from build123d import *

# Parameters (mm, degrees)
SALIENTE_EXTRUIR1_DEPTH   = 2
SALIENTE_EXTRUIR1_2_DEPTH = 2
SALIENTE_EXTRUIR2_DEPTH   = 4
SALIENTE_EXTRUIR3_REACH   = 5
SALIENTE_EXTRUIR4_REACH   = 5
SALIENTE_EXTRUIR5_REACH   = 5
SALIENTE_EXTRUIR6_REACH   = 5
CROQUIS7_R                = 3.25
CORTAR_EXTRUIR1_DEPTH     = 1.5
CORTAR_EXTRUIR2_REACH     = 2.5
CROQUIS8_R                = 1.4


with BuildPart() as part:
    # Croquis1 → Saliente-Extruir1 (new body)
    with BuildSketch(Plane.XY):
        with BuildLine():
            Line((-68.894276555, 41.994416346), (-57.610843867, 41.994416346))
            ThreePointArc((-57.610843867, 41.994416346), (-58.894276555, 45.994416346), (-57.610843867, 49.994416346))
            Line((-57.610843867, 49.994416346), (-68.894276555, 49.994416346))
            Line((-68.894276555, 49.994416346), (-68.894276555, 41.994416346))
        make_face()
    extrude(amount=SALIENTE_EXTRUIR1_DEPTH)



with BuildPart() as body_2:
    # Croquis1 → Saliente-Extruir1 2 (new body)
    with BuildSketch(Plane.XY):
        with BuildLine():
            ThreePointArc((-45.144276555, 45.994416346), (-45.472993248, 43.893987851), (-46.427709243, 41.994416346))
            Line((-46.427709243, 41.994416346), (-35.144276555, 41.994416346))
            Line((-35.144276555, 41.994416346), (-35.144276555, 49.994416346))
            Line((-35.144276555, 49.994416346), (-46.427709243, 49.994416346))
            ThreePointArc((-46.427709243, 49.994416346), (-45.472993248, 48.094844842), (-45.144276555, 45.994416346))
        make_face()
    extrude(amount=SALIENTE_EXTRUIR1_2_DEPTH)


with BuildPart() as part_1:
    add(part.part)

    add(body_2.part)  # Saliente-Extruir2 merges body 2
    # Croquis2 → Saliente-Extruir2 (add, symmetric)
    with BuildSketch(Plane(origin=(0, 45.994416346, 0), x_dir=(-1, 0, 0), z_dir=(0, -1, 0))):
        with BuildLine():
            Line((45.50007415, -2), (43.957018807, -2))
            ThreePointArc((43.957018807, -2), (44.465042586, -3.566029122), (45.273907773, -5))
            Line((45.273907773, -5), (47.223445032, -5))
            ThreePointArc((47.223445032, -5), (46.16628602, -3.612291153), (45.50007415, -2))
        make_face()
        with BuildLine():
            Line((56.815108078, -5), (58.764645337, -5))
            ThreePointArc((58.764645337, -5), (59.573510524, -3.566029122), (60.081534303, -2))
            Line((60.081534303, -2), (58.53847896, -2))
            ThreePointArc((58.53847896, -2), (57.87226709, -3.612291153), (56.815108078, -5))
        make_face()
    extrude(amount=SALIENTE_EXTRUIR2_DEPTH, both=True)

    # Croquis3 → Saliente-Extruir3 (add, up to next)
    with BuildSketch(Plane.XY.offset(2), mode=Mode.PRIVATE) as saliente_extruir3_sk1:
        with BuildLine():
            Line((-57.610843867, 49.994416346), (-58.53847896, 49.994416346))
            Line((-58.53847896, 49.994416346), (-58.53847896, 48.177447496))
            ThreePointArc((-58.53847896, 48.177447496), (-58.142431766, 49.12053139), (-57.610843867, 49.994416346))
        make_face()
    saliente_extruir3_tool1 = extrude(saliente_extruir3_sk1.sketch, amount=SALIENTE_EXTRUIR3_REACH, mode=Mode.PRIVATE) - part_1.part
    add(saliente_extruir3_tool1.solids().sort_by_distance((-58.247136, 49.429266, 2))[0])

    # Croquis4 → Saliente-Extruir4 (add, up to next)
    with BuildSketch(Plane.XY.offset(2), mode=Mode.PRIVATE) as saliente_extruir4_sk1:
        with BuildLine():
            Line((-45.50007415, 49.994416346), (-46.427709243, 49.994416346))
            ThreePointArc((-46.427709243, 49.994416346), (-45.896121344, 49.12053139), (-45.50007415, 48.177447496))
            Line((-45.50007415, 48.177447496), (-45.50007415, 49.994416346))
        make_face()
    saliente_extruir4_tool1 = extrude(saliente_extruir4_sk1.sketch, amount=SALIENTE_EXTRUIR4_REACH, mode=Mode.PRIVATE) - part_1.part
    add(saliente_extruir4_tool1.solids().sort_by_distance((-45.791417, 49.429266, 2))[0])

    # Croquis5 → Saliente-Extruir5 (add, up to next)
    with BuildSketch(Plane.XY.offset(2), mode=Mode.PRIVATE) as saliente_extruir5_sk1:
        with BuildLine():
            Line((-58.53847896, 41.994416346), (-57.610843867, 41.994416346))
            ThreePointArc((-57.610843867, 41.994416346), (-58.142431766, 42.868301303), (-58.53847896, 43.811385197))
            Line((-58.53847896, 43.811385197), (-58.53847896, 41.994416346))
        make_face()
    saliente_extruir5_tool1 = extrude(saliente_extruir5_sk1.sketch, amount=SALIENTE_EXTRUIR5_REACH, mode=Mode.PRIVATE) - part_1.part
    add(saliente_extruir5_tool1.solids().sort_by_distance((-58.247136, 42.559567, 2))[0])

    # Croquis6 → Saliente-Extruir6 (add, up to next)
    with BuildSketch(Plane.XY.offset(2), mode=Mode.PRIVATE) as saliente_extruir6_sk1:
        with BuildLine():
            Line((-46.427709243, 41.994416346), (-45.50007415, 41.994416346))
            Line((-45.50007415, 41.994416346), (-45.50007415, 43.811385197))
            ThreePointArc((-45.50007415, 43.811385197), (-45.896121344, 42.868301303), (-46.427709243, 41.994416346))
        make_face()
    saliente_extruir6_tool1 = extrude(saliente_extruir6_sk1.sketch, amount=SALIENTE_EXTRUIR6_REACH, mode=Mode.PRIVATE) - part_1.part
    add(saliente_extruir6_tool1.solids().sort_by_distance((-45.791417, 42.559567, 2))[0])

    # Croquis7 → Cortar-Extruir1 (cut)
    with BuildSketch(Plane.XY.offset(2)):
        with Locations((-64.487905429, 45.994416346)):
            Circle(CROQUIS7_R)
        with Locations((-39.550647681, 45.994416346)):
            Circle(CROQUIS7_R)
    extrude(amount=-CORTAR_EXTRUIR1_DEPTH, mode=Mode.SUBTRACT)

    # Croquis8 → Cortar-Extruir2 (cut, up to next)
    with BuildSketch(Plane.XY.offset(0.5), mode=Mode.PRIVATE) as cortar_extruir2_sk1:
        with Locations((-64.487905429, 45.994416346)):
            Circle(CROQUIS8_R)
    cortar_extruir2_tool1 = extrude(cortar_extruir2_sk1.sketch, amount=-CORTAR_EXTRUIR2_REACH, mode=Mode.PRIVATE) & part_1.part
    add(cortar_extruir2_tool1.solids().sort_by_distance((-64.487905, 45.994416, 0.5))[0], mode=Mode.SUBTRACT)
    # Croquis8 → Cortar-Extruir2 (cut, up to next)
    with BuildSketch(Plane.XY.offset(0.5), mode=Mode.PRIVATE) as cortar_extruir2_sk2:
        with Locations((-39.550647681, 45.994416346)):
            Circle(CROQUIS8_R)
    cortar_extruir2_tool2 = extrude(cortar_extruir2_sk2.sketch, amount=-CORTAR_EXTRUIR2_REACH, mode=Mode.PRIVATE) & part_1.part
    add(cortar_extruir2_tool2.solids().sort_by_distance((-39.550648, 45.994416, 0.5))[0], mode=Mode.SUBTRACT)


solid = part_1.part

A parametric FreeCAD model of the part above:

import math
import FreeCAD as App
import Part
import Sketcher

V = App.Vector

doc = App.newDocument("Part")
params = doc.addObject("Spreadsheet::Sheet", "Params")
for row, (alias, value) in enumerate([
    ("sketch1_height", "8 mm"),
    ("pad1_length", "2 mm"),
    ("sketch2_height", "8 mm"),
    ("pad2_length", "2 mm"),
    ("sketch3_radius", "8.25 mm"),
    ("sketch3_radius2", "6.75 mm"),
    ("pad3_length", "8 mm"),
    ("pad5_length", "2.031121 mm"),
    ("pad7_length", "2.031121 mm"),
    ("sketch8_diameter", "6.5 mm"),
    ("pocket1_length", "1.5 mm"),
    ("sketch9_diameter", "2.8 mm"),
    ("sketch10_diameter", "2.8 mm"),
], start=1):
    params.set(f"A{row}", alias)
    params.set(f"B{row}", "=" + value)
    params.setAlias(f"B{row}", alias)

body = doc.addObject("PartDesign::Body", "Body")

# Sketch on XY plane
sketch1 = body.newObject("Sketcher::SketchObject", "Sketch")
sketch1.AttachmentSupport = (doc.getObject("XY_Plane"), [""])
sketch1.MapMode = "FlatFace"
sketch1.addGeometry([
    Part.LineSegment(V(-68.894277, 41.994416, 0), V(-57.610844, 41.994416, 0)),
    Part.ArcOfCircle(Part.Circle(V(-52.019277, 45.994416, 0), V(0, 0, 1), 6.875), math.radians(144.421474), math.radians(215.578526)),
    Part.LineSegment(V(-57.610844, 49.994416, 0), V(-68.894277, 49.994416, 0)),
    Part.LineSegment(V(-68.894277, 49.994416, 0), V(-68.894277, 41.994416, 0)),
], False)
sketch1.addConstraint([
    Sketcher.Constraint("Coincident", 0, 2, 1, 2),
    Sketcher.Constraint("Coincident", 1, 1, 2, 1),
    Sketcher.Constraint("Coincident", 2, 2, 3, 1),
    Sketcher.Constraint("Coincident", 3, 2, 0, 1),
    Sketcher.Constraint("Horizontal", 0),
    Sketcher.Constraint("Horizontal", 2),
    Sketcher.Constraint("Vertical", 3),
    Sketcher.Constraint("Vertical", 0, 2, 1, 1),
    Sketcher.Constraint("DistanceY", 3, 2, 3, 1, 8.0),
    Sketcher.Constraint("Radius", 1, 6.875),
    Sketcher.Constraint("DistanceX", 2, 2, 1, 3, 16.875),
    Sketcher.Constraint("DistanceX", 1, 3, -1, 1, 52.019277),
    Sketcher.Constraint("DistanceY", -1, 1, 1, 3, 45.994416),
])
sketch1.setExpression("Constraints[8]", "Params.sketch1_height")
pad1 = body.newObject("PartDesign::Pad", "Pad")
pad1.Profile = sketch1
pad1.setExpression("Length", "Params.pad1_length")
body2 = doc.addObject("PartDesign::Body", "Body001")

# Sketch on XY plane
sketch2 = body2.newObject("Sketcher::SketchObject", "Sketch001")
sketch2.AttachmentSupport = (doc.getObject("XY_Plane001"), [""])
sketch2.MapMode = "FlatFace"
sketch2.addGeometry([
    Part.ArcOfCircle(Part.Circle(V(-52.019277, 45.994416, 0), V(0, 0, 1), 6.875), math.radians(-35.578526), math.radians(0)),  # 0
    Part.LineSegment(V(-46.427709, 41.994416, 0), V(-35.144277, 41.994416, 0)),  # 1
    Part.LineSegment(V(-35.144277, 41.994416, 0), V(-35.144277, 49.994416, 0)),  # 2
    Part.LineSegment(V(-35.144277, 49.994416, 0), V(-46.427709, 49.994416, 0)),  # 3
    Part.ArcOfCircle(Part.Circle(V(-52.019277, 45.994416, 0), V(0, 0, 1), 6.875), math.radians(0), math.radians(35.578526)),  # 4
], False)
sketch2.addConstraint([
    Sketcher.Constraint("Coincident", 0, 1, 1, 1),
    Sketcher.Constraint("Coincident", 1, 2, 2, 1),
    Sketcher.Constraint("Coincident", 2, 2, 3, 1),
    Sketcher.Constraint("Coincident", 3, 2, 4, 2),
    Sketcher.Constraint("Tangent", 4, 1, 0, 2),
    Sketcher.Constraint("Horizontal", 1),
    Sketcher.Constraint("Vertical", 2),
    Sketcher.Constraint("Horizontal", 3),
    Sketcher.Constraint("Equal", 0, 4),
    Sketcher.Constraint("Horizontal", 0, 3, 4, 1),
    Sketcher.Constraint("Vertical", 0, 1, 3, 2),
    Sketcher.Constraint("DistanceY", 2, 1, 2, 2, 8.0),
    Sketcher.Constraint("Radius", 0, 6.875),
    Sketcher.Constraint("DistanceX", 4, 1, 1, 2, 10.0),
    Sketcher.Constraint("DistanceX", 0, 1, -1, 1, 46.427709),
    Sketcher.Constraint("DistanceY", -1, 1, 0, 3, 45.994416),
])
sketch2.setExpression("Constraints[11]", "Params.sketch2_height")
pad2 = body2.newObject("PartDesign::Pad", "Pad001")
pad2.Profile = sketch2
pad2.setExpression("Length", "Params.pad2_length")
body.AllowCompound = True
doc.recompute()

boolean = body.newObject("PartDesign::Boolean", "Boolean")
boolean.Type = "Fuse"
boolean.addObjects([body2])

# Sketch on XZ plane
sketch3 = body.newObject("Sketcher::SketchObject", "Sketch002")
sketch3.AttachmentSupport = (doc.getObject("XZ_Plane"), [""])
sketch3.MapMode = "FlatFace"
sketch3.AttachmentOffset = App.Placement(V(0, 0, -45.994416), App.Rotation())
sketch3.addGeometry([
    Part.LineSegment(V(-45.500074, 2, 0), V(-43.957019, 2, 0)),  # 0
    Part.ArcOfCircle(Part.Circle(V(-52.019277, 0.25, 0), V(0, 0, 1), 8.25), math.radians(12.24669), math.radians(35.152703)),  # 1
    Part.LineSegment(V(-45.273908, 5, 0), V(-47.223445, 5, 0)),  # 2
    Part.ArcOfCircle(Part.Circle(V(-52.019277, 0.25, 0), V(0, 0, 1), 6.75), math.radians(15.026114), math.radians(44.724913)),  # 3
    Part.LineSegment(V(-56.815108, 5, 0), V(-58.764645, 5, 0)),  # 4
    Part.ArcOfCircle(Part.Circle(V(-52.019277, 0.25, 0), V(0, 0, 1), 8.25), math.radians(144.847297), math.radians(167.75331)),  # 5
    Part.LineSegment(V(-60.081534, 2, 0), V(-58.538479, 2, 0)),  # 6
    Part.ArcOfCircle(Part.Circle(V(-52.019277, 0.25, 0), V(0, 0, 1), 6.75), math.radians(135.275087), math.radians(164.973886)),  # 7
], False)
sketch3.addConstraint([
    Sketcher.Constraint("Coincident", 0, 2, 1, 1),
    Sketcher.Constraint("Coincident", 1, 2, 2, 1),
    Sketcher.Constraint("Coincident", 2, 2, 3, 2),
    Sketcher.Constraint("Coincident", 3, 1, 0, 1),
    Sketcher.Constraint("Coincident", 4, 2, 5, 1),
    Sketcher.Constraint("Coincident", 5, 2, 6, 1),
    Sketcher.Constraint("Coincident", 6, 2, 7, 2),
    Sketcher.Constraint("Coincident", 7, 1, 4, 1),
    Sketcher.Constraint("Horizontal", 0),
    Sketcher.Constraint("Horizontal", 2),
    Sketcher.Constraint("Horizontal", 4),
    Sketcher.Constraint("Horizontal", 6),
    Sketcher.Constraint("Coincident", 3, 3, 1, 3),
    Sketcher.Constraint("Coincident", 5, 3, 1, 3),
    Sketcher.Constraint("Coincident", 7, 3, 1, 3),
    Sketcher.Constraint("Equal", 1, 5),
    Sketcher.Constraint("Equal", 3, 7),
    Sketcher.Constraint("Horizontal", 2, 2, 4, 2),
    Sketcher.Constraint("Horizontal", 3, 1, 5, 2),
    Sketcher.Constraint("Radius", 1, 8.25),
    Sketcher.Constraint("Radius", 3, 6.75),
    Sketcher.Constraint("DistanceY", -1, 1, 0, 2, 2.0),
    Sketcher.Constraint("DistanceY", -1, 1, 1, 2, 5.0),
    Sketcher.Constraint("DistanceY", -1, 1, 1, 3, 0.25),
    Sketcher.Constraint("DistanceX", 0, 2, -1, 1, 43.957019),
])
sketch3.setExpression("Constraints[19]", "Params.sketch3_radius")
sketch3.setExpression("Constraints[20]", "Params.sketch3_radius2")
pad3 = body.newObject("PartDesign::Pad", "Pad002")
pad3.Profile = sketch3
pad3.setExpression("Length", "Params.pad3_length")
pad3.Midplane = True

# Sketch on XY plane
sketch4 = body.newObject("Sketcher::SketchObject", "Sketch003")
sketch4.AttachmentSupport = (doc.getObject("XY_Plane"), [""])
sketch4.MapMode = "FlatFace"
sketch4.AttachmentOffset = App.Placement(V(0, 0, 2), App.Rotation())
sketch4.addGeometry([
    Part.LineSegment(V(-57.610844, 49.994416, 0), V(-58.538479, 49.994416, 0)),
    Part.LineSegment(V(-58.538479, 49.994416, 0), V(-58.538479, 48.177447, 0)),
    Part.ArcOfCircle(Part.Circle(V(-52.019277, 45.994416, 0), V(0, 0, 1), 6.875), math.radians(144.421474), math.radians(161.486276)),
], False)
sketch4.addConstraint([
    Sketcher.Constraint("Coincident", 0, 2, 1, 1),
    Sketcher.Constraint("Coincident", 1, 2, 2, 2),
    Sketcher.Constraint("Coincident", 2, 1, 0, 1),
    Sketcher.Constraint("Horizontal", 0),
    Sketcher.Constraint("Vertical", 1),
    Sketcher.Constraint("Radius", 2, 6.875),
    Sketcher.Constraint("DistanceY", 2, 3, 0, 2, 4.0),
    Sketcher.Constraint("DistanceY", 1, 2, 1, 1, 1.816969),
    Sketcher.Constraint("DistanceX", 0, 2, -1, 1, 58.538479),
    Sketcher.Constraint("DistanceY", -1, 1, 2, 3, 45.994416),
])
pad4 = body.newObject("PartDesign::Pad", "Pad003")
pad4.Profile = sketch4
pad4.Type = "UpToFirst"

# Sketch on XY plane
sketch5 = body.newObject("Sketcher::SketchObject", "Sketch004")
sketch5.AttachmentSupport = (doc.getObject("XY_Plane"), [""])
sketch5.MapMode = "FlatFace"
sketch5.AttachmentOffset = App.Placement(V(0, 0, 2), App.Rotation())
sketch5.addGeometry([
    Part.LineSegment(V(-45.500074, 49.994416, 0), V(-46.427709, 49.994416, 0)),
    Part.ArcOfCircle(Part.Circle(V(-52.019277, 45.994416, 0), V(0, 0, 1), 6.875), math.radians(18.513724), math.radians(35.578526)),
    Part.LineSegment(V(-45.500074, 48.177447, 0), V(-45.500074, 49.994416, 0)),
], False)
sketch5.addConstraint([
    Sketcher.Constraint("Coincident", 0, 2, 1, 2),
    Sketcher.Constraint("Coincident", 1, 1, 2, 1),
    Sketcher.Constraint("Coincident", 2, 2, 0, 1),
    Sketcher.Constraint("Horizontal", 0),
    Sketcher.Constraint("Vertical", 2),
    Sketcher.Constraint("Radius", 1, 6.875),
    Sketcher.Constraint("DistanceY", 1, 3, 0, 2, 4.0),
    Sketcher.Constraint("DistanceY", 2, 1, 2, 2, 1.816969),
    Sketcher.Constraint("DistanceX", 0, 2, -1, 1, 46.427709),
    Sketcher.Constraint("DistanceY", -1, 1, 1, 3, 45.994416),
])
pad5 = body.newObject("PartDesign::Pad", "Pad004")
pad5.Profile = sketch5
pad5.setExpression("Length", "Params.pad5_length")

# Sketch on XY plane
sketch6 = body.newObject("Sketcher::SketchObject", "Sketch005")
sketch6.AttachmentSupport = (doc.getObject("XY_Plane"), [""])
sketch6.MapMode = "FlatFace"
sketch6.AttachmentOffset = App.Placement(V(0, 0, 2), App.Rotation())
sketch6.addGeometry([
    Part.LineSegment(V(-58.538479, 41.994416, 0), V(-57.610844, 41.994416, 0)),
    Part.ArcOfCircle(Part.Circle(V(-52.019277, 45.994416, 0), V(0, 0, 1), 6.875), math.radians(-161.486276), math.radians(-144.421474)),
    Part.LineSegment(V(-58.538479, 43.811385, 0), V(-58.538479, 41.994416, 0)),
], False)
sketch6.addConstraint([
    Sketcher.Constraint("Coincident", 0, 2, 1, 2),
    Sketcher.Constraint("Coincident", 1, 1, 2, 1),
    Sketcher.Constraint("Coincident", 2, 2, 0, 1),
    Sketcher.Constraint("Horizontal", 0),
    Sketcher.Constraint("Vertical", 2),
    Sketcher.Constraint("Radius", 1, 6.875),
    Sketcher.Constraint("DistanceY", 0, 2, 1, 3, 4.0),
    Sketcher.Constraint("DistanceY", 2, 2, 2, 1, 1.816969),
    Sketcher.Constraint("DistanceX", 1, 1, -1, 1, 58.538479),
    Sketcher.Constraint("DistanceY", -1, 1, 1, 3, 45.994416),
])
pad6 = body.newObject("PartDesign::Pad", "Pad005")
pad6.Profile = sketch6
pad6.Type = "UpToFirst"

# Sketch on XY plane
sketch7 = body.newObject("Sketcher::SketchObject", "Sketch006")
sketch7.AttachmentSupport = (doc.getObject("XY_Plane"), [""])
sketch7.MapMode = "FlatFace"
sketch7.AttachmentOffset = App.Placement(V(0, 0, 2), App.Rotation())
sketch7.addGeometry([
    Part.LineSegment(V(-46.427709, 41.994416, 0), V(-45.500074, 41.994416, 0)),
    Part.LineSegment(V(-45.500074, 41.994416, 0), V(-45.500074, 43.811385, 0)),
    Part.ArcOfCircle(Part.Circle(V(-52.019277, 45.994416, 0), V(0, 0, 1), 6.875), math.radians(-35.578526), math.radians(-18.513724)),
], False)
sketch7.addConstraint([
    Sketcher.Constraint("Coincident", 0, 2, 1, 1),
    Sketcher.Constraint("Coincident", 1, 2, 2, 2),
    Sketcher.Constraint("Coincident", 2, 1, 0, 1),
    Sketcher.Constraint("Horizontal", 0),
    Sketcher.Constraint("Vertical", 1),
    Sketcher.Constraint("Radius", 2, 6.875),
    Sketcher.Constraint("DistanceY", 0, 2, 2, 3, 4.0),
    Sketcher.Constraint("DistanceY", 1, 1, 1, 2, 1.816969),
    Sketcher.Constraint("DistanceX", 2, 1, -1, 1, 46.427709),
    Sketcher.Constraint("DistanceY", -1, 1, 2, 3, 45.994416),
])
pad7 = body.newObject("PartDesign::Pad", "Pad006")
pad7.Profile = sketch7
pad7.setExpression("Length", "Params.pad7_length")

# Sketch on XY plane
sketch8 = body.newObject("Sketcher::SketchObject", "Sketch007")
sketch8.AttachmentSupport = (doc.getObject("XY_Plane"), [""])
sketch8.MapMode = "FlatFace"
sketch8.AttachmentOffset = App.Placement(V(0, 0, 2), App.Rotation())
sketch8.addGeometry([
    Part.Circle(V(-64.487905, 45.994416, 0), V(0, 0, 1), 3.25),
    Part.Circle(V(-39.550648, 45.994416, 0), V(0, 0, 1), 3.25),
], False)
sketch8.addConstraint([
    Sketcher.Constraint("Equal", 0, 1),
    Sketcher.Constraint("Horizontal", 0, 3, 1, 3),
    Sketcher.Constraint("Diameter", 0, 6.5),
    Sketcher.Constraint("DistanceX", 0, 3, -1, 1, 64.487905),
    Sketcher.Constraint("DistanceY", -1, 1, 0, 3, 45.994416),
    Sketcher.Constraint("DistanceX", 1, 3, -1, 1, 39.550648),
])
sketch8.setExpression("Constraints[2]", "Params.sketch8_diameter")
pocket1 = body.newObject("PartDesign::Pocket", "Pocket")
pocket1.Profile = sketch8
pocket1.setExpression("Length", "Params.pocket1_length")

# Sketch on XY plane
sketch9 = body.newObject("Sketcher::SketchObject", "Sketch008")
sketch9.AttachmentSupport = (doc.getObject("XY_Plane"), [""])
sketch9.MapMode = "FlatFace"
sketch9.AttachmentOffset = App.Placement(V(0, 0, 0.5), App.Rotation())
sketch9.addGeometry(Part.Circle(V(-64.487905, 45.994416, 0), V(0, 0, 1), 1.4), False)
sketch9.addConstraint([
    Sketcher.Constraint("Diameter", 0, 2.8),
    Sketcher.Constraint("DistanceX", 0, 3, -1, 1, 64.487905),
    Sketcher.Constraint("DistanceY", -1, 1, 0, 3, 45.994416),
])
sketch9.setExpression("Constraints[0]", "Params.sketch9_diameter")
pocket2 = body.newObject("PartDesign::Pocket", "Pocket001")
pocket2.Profile = sketch9
pocket2.Type = "UpToFirst"

# Sketch on XY plane
sketch10 = body.newObject("Sketcher::SketchObject", "Sketch009")
sketch10.AttachmentSupport = (doc.getObject("XY_Plane"), [""])
sketch10.MapMode = "FlatFace"
sketch10.AttachmentOffset = App.Placement(V(0, 0, 0.5), App.Rotation())
sketch10.addGeometry(Part.Circle(V(-39.550648, 45.994416, 0), V(0, 0, 1), 1.4), False)
sketch10.addConstraint([
    Sketcher.Constraint("Diameter", 0, 2.8),
    Sketcher.Constraint("DistanceX", 0, 3, -1, 1, 39.550648),
    Sketcher.Constraint("DistanceY", -1, 1, 0, 3, 45.994416),
])
sketch10.setExpression("Constraints[0]", "Params.sketch10_diameter")
pocket3 = body.newObject("PartDesign::Pocket", "Pocket002")
pocket3.Profile = sketch10
pocket3.Type = "UpToFirst"

doc.recompute()
